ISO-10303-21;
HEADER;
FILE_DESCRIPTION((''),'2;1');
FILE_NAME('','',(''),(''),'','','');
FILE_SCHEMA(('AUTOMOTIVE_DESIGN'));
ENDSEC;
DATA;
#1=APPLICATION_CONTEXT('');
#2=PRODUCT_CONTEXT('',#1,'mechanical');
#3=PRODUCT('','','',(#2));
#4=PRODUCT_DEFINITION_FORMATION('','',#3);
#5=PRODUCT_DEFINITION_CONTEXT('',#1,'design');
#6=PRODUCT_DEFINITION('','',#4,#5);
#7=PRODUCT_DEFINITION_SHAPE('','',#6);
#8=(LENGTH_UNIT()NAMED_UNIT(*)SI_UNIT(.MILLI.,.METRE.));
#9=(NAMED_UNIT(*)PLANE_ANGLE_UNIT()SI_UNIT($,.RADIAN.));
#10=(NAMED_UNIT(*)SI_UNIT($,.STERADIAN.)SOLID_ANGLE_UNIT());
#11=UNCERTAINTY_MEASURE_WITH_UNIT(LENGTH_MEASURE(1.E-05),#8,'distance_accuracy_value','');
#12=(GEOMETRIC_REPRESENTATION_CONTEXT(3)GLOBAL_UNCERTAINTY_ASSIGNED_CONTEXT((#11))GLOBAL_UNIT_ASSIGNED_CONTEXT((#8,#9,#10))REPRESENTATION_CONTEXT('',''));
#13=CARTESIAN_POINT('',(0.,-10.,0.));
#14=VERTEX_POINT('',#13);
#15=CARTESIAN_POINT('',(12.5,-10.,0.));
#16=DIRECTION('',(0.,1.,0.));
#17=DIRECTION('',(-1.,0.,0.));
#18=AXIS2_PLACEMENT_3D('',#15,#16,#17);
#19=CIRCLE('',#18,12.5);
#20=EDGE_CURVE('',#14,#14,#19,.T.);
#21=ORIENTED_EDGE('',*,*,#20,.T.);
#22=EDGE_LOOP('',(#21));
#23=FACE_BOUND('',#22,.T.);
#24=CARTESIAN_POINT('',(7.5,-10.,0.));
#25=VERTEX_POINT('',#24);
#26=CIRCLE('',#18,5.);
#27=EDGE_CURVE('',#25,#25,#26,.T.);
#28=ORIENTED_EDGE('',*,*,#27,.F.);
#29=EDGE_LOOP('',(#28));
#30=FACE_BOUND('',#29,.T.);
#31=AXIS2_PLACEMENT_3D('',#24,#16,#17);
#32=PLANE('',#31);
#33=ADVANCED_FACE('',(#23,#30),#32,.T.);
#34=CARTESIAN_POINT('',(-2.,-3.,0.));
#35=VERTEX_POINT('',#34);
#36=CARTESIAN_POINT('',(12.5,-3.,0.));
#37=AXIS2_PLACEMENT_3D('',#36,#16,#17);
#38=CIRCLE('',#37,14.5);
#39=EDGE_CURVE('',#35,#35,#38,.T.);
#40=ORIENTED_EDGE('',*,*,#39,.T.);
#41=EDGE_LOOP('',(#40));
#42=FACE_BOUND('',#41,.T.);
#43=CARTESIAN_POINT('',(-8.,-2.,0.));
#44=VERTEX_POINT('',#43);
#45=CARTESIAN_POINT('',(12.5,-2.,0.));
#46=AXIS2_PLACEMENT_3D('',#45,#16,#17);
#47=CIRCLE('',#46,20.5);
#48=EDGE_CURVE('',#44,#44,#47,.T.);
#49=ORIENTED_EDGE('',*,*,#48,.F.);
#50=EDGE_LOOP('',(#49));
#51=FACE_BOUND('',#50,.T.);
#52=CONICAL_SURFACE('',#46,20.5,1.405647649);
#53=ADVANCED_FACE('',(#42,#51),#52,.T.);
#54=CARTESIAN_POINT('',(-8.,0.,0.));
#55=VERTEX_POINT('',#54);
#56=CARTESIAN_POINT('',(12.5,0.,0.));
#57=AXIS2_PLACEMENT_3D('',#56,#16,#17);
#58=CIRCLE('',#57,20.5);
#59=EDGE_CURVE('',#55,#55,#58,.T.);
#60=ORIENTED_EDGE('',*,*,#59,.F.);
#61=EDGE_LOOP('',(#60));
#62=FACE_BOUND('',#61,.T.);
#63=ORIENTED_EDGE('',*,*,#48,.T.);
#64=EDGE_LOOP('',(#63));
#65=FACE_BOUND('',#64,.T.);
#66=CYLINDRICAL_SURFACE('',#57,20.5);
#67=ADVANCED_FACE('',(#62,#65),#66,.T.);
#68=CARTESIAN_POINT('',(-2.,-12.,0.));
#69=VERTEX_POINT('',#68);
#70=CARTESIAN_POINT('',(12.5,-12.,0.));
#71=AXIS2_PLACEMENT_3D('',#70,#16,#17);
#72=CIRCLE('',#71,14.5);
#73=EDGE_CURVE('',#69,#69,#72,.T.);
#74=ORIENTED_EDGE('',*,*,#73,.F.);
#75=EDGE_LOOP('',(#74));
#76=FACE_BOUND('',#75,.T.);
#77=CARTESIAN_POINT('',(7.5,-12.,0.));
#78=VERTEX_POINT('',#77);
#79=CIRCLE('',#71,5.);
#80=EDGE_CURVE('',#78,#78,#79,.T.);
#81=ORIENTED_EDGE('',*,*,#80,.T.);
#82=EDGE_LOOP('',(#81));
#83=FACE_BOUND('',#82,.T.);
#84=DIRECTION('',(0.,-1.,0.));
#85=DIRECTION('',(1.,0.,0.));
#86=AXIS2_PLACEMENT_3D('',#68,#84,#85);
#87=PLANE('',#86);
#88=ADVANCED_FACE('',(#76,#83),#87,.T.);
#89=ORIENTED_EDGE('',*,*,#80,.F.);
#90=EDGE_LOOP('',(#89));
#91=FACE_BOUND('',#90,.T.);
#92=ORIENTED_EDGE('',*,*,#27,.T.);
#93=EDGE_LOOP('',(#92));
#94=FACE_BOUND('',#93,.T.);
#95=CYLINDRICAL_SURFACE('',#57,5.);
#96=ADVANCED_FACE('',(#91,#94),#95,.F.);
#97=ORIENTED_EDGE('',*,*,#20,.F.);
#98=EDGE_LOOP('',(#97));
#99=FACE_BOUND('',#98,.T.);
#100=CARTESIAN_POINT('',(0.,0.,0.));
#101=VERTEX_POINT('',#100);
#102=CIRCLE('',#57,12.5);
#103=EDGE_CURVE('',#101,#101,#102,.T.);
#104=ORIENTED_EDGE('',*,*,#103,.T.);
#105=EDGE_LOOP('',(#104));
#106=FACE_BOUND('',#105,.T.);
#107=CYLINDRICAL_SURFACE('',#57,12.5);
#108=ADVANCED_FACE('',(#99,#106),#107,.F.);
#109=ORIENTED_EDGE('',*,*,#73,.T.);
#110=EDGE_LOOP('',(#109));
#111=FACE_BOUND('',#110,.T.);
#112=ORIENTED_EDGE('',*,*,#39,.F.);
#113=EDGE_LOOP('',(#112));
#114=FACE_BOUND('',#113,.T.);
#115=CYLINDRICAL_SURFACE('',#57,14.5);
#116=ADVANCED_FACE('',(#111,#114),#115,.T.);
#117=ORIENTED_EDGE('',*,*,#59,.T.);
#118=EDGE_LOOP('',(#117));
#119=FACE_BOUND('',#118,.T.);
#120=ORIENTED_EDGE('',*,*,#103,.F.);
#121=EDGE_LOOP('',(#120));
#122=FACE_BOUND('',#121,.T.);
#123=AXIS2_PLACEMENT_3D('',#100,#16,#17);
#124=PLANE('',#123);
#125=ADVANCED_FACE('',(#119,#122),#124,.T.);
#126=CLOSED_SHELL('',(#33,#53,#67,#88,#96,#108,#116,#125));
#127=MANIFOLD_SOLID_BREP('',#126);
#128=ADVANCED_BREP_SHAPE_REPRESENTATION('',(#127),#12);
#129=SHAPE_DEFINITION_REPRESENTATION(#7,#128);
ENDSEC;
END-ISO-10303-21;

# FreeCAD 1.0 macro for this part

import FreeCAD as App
import Part
import Sketcher
from FreeCAD import Vector
Q = App.Units.Quantity


def add_polygon(sketch, points):
    """Adds a closed chain of lines whose ends are joined by coincident constraints."""
    first, n = sketch.GeometryCount, len(points)
    for a, b in zip(points, points[1:] + points[:1]):
        sketch.addGeometry(Part.LineSegment(App.Vector(*a, 0), App.Vector(*b, 0)), False)
    for i in range(n):
        sketch.addConstraint(Sketcher.Constraint("Coincident", first + i, 2, first + (i + 1) % n, 1))

doc = App.newDocument("Part")
body = doc.addObject("PartDesign::Body", "Body")

sketch1 = body.newObject("Sketcher::SketchObject", "Sketch")
sketch1.AttachmentSupport = (doc.getObject("XY_Plane"), [""])
sketch1.MapMode = "FlatFace"
add_polygon(sketch1, [(0, 0), (-8, 0), (-8, -2), (-2, -3), (-2, -12), (7.5, -12), (7.5, -10), (0, -10)])
sketch1.addGeometry(Part.LineSegment(Vector(12.5, 0, 0), Vector(12.5, -12, 0)), True)
sketch1.addConstraint([
    Sketcher.Constraint("Horizontal", 0),
    Sketcher.Constraint("Vertical", 1),
    Sketcher.Constraint("Vertical", 3),
    Sketcher.Constraint("Horizontal", 4),
    Sketcher.Constraint("Vertical", 5),
    Sketcher.Constraint("Horizontal", 6),
    Sketcher.Constraint("Vertical", 7),
    Sketcher.Constraint("Vertical", 8),
    Sketcher.Constraint("Coincident", 7, 2, -1, 1),
    Sketcher.Constraint("PointOnObject", 8, 1, -1),
    Sketcher.Constraint("Horizontal", 4, 2, 8, 2),
    Sketcher.Constraint("Equal", 1, 5),
    Sketcher.Constraint("DistanceX", 0, 2, 0, 1, Q("8 mm")),
    Sketcher.Constraint("DistanceY", 1, 2, 1, 1, Q("2 mm")),
    Sketcher.Constraint("DistanceY", 3, 2, 3, 1, Q("9 mm")),
    Sketcher.Constraint("DistanceY", 7, 1, 7, 2, Q("10 mm")),
    Sketcher.Constraint("DistanceX", 4, 1, 4, 2, Q("9.5 mm")),
    Sketcher.Constraint("DistanceX", 6, 2, 6, 1, Q("7.5 mm")),
    Sketcher.Constraint("DistanceX", 5, 2, 8, 1, Q("5 mm")),
])
revolution = body.newObject("PartDesign::Revolution", "Revolution")
revolution.Profile = sketch1
revolution.ReferenceAxis = (sketch1, ["Axis0"])
revolution.Angle = 360

doc.recompute()
